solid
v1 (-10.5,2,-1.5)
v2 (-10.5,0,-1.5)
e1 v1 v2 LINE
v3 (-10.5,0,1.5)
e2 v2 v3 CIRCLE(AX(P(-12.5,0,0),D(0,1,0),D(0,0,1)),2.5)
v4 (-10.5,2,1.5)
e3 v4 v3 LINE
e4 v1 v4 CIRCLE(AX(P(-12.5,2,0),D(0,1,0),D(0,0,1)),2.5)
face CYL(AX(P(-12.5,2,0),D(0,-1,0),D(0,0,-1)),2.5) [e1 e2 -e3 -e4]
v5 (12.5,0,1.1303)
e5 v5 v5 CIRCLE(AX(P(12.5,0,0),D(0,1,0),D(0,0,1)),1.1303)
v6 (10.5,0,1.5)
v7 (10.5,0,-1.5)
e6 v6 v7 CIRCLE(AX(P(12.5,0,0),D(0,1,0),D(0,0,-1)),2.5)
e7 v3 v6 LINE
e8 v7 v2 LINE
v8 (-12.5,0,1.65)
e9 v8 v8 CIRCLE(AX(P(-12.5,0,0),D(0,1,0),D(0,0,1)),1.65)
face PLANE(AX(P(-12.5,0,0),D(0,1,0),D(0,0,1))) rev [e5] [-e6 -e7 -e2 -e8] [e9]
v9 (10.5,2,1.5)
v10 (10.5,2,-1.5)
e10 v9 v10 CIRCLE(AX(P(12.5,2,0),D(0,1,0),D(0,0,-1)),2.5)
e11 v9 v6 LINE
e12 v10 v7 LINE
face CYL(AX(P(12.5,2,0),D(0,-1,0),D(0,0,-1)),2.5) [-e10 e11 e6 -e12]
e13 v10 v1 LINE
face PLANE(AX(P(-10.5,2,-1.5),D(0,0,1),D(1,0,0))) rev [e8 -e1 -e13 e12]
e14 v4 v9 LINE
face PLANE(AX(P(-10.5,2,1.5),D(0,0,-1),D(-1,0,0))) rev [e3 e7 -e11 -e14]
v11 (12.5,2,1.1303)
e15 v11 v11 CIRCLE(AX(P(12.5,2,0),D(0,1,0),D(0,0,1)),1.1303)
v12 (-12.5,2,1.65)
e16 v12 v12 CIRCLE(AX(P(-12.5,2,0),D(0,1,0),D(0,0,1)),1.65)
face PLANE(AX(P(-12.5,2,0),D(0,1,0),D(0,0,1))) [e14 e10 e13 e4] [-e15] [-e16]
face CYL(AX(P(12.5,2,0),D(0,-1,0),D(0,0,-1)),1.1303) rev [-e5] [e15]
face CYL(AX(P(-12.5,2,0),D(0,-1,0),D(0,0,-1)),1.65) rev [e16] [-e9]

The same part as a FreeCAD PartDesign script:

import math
import FreeCAD as App
import Part
import Sketcher
from FreeCAD import Vector
Q = App.Units.Quantity

doc = App.newDocument("Part")
body = doc.addObject("PartDesign::Body", "Body")

sketch1 = body.newObject("Sketcher::SketchObject", "Sketch")
sketch1.AttachmentSupport = (doc.getObject("XZ_Plane"), [""])
sketch1.MapMode = "FlatFace"
sketch1.addGeometry([
    Part.LineSegment(Vector(10.5, -1.5, 0), Vector(-10.5, -1.5, 0)),
    Part.ArcOfCircle(Part.Circle(Vector(-12.5, 0, 0), Vector(0, 0, 1), 2.5), math.radians(37), math.radians(323)),
    Part.LineSegment(Vector(-10.5, 1.5, 0), Vector(10.5, 1.5, 0)),
    Part.ArcOfCircle(Part.Circle(Vector(12.5, 0, 0), Vector(0, 0, 1), 2.5), math.radians(-143), math.radians(143)),
    Part.Circle(Vector(12.5, 0, 0), Vector(0, 0, 1), 1.1),
    Part.Circle(Vector(-12.5, 0, 0), Vector(0, 0, 1), 1.6),
], False)
sketch1.addConstraint([
    Sketcher.Constraint("Coincident", 0, 2, 1, 2),
    Sketcher.Constraint("Coincident", 1, 1, 2, 1),
    Sketcher.Constraint("Coincident", 2, 2, 3, 2),
    Sketcher.Constraint("Coincident", 3, 1, 0, 1),
    Sketcher.Constraint("Horizontal", 0),
    Sketcher.Constraint("Horizontal", 2),
    Sketcher.Constraint("Coincident", 4, 3, 3, 3),
    Sketcher.Constraint("Coincident", 5, 3, 1, 3),
    Sketcher.Constraint("Equal", 1, 3),
    Sketcher.Constraint("Symmetric", 1, 3, 3, 3, -1, 1),
    Sketcher.Constraint("Symmetric", 0, 2, 1, 1, -1),
    Sketcher.Constraint("Diameter", 5, Q("3.3 mm")),
    Sketcher.Constraint("Radius", 1, Q("2.5 mm")),
    Sketcher.Constraint("DistanceX", 0, 2, 0, 1, Q("21 mm")),
    Sketcher.Constraint("DistanceX", 1, 3, 3, 3, Q("25 mm")),
    Sketcher.Constraint("Diameter", 4, Q("2.2606 mm")),
])
pad1 = body.newObject("PartDesign::Pad", "Pad")
pad1.Profile = sketch1
pad1.Length = 2
pad1.Reversed = True

doc.recompute()
